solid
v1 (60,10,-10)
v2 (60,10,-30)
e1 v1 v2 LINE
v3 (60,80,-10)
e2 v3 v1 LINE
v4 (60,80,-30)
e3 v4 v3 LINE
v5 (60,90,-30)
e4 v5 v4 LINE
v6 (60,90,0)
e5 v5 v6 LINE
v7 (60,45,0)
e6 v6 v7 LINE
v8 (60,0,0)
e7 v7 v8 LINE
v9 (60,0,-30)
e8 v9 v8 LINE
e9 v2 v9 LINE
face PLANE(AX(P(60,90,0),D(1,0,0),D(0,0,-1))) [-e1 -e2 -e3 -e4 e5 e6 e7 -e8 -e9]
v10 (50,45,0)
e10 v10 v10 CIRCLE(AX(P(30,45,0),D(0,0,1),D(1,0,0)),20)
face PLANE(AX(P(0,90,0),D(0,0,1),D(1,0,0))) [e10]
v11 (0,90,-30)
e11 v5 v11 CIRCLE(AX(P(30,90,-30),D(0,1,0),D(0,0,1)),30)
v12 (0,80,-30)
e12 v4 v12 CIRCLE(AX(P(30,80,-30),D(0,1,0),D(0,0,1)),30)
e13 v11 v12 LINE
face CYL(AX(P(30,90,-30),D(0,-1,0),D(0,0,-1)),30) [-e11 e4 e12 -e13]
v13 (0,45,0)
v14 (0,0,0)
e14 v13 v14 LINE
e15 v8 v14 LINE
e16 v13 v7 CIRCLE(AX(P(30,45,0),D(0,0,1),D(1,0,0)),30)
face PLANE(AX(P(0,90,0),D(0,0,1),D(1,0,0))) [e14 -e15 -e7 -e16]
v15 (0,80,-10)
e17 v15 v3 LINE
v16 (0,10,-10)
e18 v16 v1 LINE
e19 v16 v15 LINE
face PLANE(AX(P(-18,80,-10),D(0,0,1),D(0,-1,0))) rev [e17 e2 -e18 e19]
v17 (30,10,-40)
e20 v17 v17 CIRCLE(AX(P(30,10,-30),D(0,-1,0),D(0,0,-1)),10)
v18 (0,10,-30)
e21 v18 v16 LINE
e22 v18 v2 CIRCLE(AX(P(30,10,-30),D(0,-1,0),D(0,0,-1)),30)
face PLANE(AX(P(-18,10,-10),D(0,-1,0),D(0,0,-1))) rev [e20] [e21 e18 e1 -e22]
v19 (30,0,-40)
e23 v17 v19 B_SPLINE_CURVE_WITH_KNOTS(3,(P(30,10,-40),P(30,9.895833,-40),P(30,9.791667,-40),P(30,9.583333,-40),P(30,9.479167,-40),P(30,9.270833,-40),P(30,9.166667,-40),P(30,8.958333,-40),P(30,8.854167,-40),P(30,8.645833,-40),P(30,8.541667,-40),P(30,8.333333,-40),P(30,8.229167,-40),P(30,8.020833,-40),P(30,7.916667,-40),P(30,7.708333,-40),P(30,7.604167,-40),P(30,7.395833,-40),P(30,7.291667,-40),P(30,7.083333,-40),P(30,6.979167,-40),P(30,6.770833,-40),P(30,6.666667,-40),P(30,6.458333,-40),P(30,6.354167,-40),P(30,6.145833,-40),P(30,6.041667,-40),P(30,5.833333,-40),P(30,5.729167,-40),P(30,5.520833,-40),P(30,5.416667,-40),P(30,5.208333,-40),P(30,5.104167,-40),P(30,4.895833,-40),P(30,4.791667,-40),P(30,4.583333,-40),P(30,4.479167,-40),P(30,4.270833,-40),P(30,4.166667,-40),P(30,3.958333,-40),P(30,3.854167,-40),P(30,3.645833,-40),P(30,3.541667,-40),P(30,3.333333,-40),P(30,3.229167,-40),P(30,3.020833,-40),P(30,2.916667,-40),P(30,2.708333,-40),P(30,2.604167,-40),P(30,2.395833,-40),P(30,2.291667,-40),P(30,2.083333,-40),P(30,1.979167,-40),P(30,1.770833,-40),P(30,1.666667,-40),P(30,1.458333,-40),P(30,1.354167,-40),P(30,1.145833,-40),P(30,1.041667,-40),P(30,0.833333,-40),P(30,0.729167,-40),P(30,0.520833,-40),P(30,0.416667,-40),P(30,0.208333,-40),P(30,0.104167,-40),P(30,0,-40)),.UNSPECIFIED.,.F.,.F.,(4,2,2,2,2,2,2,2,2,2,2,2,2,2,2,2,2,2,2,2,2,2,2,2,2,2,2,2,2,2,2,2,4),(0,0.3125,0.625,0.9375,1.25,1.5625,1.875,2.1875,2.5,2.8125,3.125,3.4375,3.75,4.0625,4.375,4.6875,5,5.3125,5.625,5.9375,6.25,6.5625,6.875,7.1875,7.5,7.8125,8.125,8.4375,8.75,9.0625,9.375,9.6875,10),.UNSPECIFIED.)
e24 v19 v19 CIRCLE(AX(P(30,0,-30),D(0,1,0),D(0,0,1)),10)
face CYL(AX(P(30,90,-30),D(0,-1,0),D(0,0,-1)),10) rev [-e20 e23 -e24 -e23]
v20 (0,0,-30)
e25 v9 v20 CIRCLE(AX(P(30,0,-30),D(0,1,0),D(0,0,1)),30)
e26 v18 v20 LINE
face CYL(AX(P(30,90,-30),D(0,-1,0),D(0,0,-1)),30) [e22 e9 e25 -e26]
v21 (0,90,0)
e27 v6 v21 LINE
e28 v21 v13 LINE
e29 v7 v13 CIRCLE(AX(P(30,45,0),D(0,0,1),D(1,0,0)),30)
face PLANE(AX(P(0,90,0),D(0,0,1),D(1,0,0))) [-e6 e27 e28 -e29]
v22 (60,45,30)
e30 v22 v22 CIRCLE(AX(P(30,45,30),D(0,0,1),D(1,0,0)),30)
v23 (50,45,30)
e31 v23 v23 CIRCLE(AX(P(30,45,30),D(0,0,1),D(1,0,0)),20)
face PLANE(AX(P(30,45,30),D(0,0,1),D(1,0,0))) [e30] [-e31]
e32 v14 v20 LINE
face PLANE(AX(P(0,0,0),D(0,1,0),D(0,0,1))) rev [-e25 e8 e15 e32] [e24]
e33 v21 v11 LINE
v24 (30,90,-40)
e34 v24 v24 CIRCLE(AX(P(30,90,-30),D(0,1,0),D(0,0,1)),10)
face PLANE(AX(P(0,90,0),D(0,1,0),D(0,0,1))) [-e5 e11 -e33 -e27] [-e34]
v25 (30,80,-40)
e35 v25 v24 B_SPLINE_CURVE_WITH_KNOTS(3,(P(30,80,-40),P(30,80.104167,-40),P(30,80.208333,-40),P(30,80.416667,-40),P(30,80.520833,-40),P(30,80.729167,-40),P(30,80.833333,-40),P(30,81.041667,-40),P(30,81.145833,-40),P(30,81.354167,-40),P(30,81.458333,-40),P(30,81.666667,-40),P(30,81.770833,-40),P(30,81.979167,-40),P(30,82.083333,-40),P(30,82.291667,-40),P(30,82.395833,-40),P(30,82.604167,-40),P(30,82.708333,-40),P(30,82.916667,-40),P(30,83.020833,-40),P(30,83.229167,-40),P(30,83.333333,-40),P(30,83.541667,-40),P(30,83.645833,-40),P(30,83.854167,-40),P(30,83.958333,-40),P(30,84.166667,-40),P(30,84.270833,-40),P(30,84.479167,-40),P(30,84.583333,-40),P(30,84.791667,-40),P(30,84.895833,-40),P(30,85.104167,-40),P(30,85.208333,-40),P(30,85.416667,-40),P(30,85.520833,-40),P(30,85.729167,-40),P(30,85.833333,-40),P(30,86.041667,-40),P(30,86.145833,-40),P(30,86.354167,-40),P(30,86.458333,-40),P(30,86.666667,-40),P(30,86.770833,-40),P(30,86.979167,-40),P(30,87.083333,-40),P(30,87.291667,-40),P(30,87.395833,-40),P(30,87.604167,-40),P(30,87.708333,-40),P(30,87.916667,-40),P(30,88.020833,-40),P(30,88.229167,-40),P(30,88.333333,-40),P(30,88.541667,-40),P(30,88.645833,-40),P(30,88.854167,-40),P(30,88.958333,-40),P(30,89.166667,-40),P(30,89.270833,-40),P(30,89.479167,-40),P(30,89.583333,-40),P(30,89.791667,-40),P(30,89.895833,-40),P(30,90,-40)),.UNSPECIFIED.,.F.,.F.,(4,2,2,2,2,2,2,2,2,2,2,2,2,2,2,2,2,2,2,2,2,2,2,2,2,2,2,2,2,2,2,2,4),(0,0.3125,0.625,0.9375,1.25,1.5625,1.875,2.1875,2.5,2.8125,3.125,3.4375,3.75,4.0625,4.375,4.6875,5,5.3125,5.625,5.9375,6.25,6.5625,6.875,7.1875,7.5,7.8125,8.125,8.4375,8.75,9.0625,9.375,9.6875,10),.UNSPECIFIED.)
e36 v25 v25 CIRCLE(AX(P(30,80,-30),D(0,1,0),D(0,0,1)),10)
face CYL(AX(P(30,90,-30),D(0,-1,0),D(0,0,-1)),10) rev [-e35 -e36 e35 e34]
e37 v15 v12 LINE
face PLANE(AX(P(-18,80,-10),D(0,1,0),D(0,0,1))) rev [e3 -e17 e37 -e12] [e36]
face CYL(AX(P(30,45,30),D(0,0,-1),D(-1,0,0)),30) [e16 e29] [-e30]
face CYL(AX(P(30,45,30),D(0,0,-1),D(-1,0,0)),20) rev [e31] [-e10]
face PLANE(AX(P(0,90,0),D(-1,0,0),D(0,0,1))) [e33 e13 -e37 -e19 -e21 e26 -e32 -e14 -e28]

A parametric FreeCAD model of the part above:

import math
import FreeCAD as App
import Part
import Sketcher
from FreeCAD import Vector


def add_polygon(sketch, points):
    """Adds a closed chain of lines whose ends are joined by coincident constraints."""
    first, n = sketch.GeometryCount, len(points)
    for a, b in zip(points, points[1:] + points[:1]):
        sketch.addGeometry(Part.LineSegment(App.Vector(*a, 0), App.Vector(*b, 0)), False)
    for i in range(n):
        sketch.addConstraint(Sketcher.Constraint("Coincident", first + i, 2, first + (i + 1) % n, 1))

doc = App.newDocument("Part")
params = doc.addObject("Spreadsheet::Sheet", "Params")
for row, (alias, value) in enumerate([
    ("sketch1_diameter", "20 mm"),
    ("sketch1_radius", "30 mm"),
    ("sketch1_height", "30 mm"),
    ("pad1_length", "90 mm"),
    ("sketch2_width", "70 mm"),
    ("sketch3_diameter", "60 mm"),
    ("sketch3_diameter2", "40 mm"),
    ("pad2_length", "30 mm"),
], start=1):
    params.set(f"A{row}", alias)
    params.set(f"B{row}", "=" + value)
    params.setAlias(f"B{row}", alias)

body = doc.addObject("PartDesign::Body", "Body")

# Sketch on XZ plane
sketch1 = doc.addObject("Sketcher::SketchObject", "Sketch")
body.addObject(sketch1)
sketch1.AttachmentSupport = (doc.XZ_Plane, [""])
sketch1.MapMode = "FlatFace"
sketch1.addGeometry([
    Part.LineSegment(Vector(0, -30, 0), Vector(0, 0, 0)),  # 0
    Part.LineSegment(Vector(0, 0, 0), Vector(60, 0, 0)),  # 1
    Part.LineSegment(Vector(60, 0, 0), Vector(60, -30, 0)),  # 2
    Part.ArcOfCircle(Part.Circle(Vector(30, -30, 0), Vector(0, 0, 1), 30), math.radians(180), math.radians(360)),  # 3
    Part.Circle(Vector(30, -30, 0), Vector(0, 0, 1), 10),  # 4
], False)
sketch1.addConstraint([
    Sketcher.Constraint("Coincident", 0, 2, 1, 1),
    Sketcher.Constraint("Coincident", 1, 2, 2, 1),
    Sketcher.Constraint("Tangent", 2, 2, 3, 2),
    Sketcher.Constraint("Tangent", 3, 1, 0, 1),
    Sketcher.Constraint("Vertical", 0),
    Sketcher.Constraint("Horizontal", 1),
    Sketcher.Constraint("Vertical", 2),
    Sketcher.Constraint("Coincident", 0, 2, -1, 1),
    Sketcher.Constraint("Coincident", 4, 3, 3, 3),
    Sketcher.Constraint("Diameter", 4, 20.0),
    Sketcher.Constraint("Radius", 3, 30.0),
    Sketcher.Constraint("DistanceY", 0, 1, 0, 2, 30.0),
])
sketch1.setExpression("Constraints[9]", "Params.sketch1_diameter")
sketch1.setExpression("Constraints[10]", "Params.sketch1_radius")
sketch1.setExpression("Constraints[11]", "Params.sketch1_height")
pad1 = doc.addObject("PartDesign::Pad", "Pad")
body.addObject(pad1)
pad1.Profile = sketch1
pad1.setExpression("Length", "Params.pad1_length")
pad1.Reversed = True

# Sketch on YZ plane
sketch2 = doc.addObject("Sketcher::SketchObject", "Sketch001")
body.addObject(sketch2)
sketch2.AttachmentSupport = (doc.YZ_Plane, [""])
sketch2.MapMode = "FlatFace"
add_polygon(sketch2, [(80, -10), (10, -10), (10, -65), (80, -65)])  # lines 0-3
sketch2.addConstraint([
    Sketcher.Constraint("Horizontal", 0),
    Sketcher.Constraint("Vertical", 1),
    Sketcher.Constraint("Horizontal", 2),
    Sketcher.Constraint("Vertical", 3),
    Sketcher.Constraint("DistanceX", 0, 2, 0, 1, 70.0),
    Sketcher.Constraint("DistanceX", -1, 1, 0, 2, 10.0),
    Sketcher.Constraint("DistanceY", 0, 2, -1, 1, 10.0),
    Sketcher.Constraint("DistanceY", 1, 2, 1, 1, 55.395668),
])
sketch2.setExpression("Constraints[8]", "Params.sketch2_width")
pocket1 = doc.addObject("PartDesign::Pocket", "Pocket")
body.addObject(pocket1)
pocket1.Profile = sketch2
pocket1.Type = "ThroughAll"
pocket1.Midplane = True

# Sketch on XY plane
sketch3 = doc.addObject("Sketcher::SketchObject", "Sketch002")
body.addObject(sketch3)
sketch3.AttachmentSupport = (doc.XY_Plane, [""])
sketch3.MapMode = "FlatFace"
sketch3.addGeometry([
    Part.Circle(Vector(30, 45, 0), Vector(0, 0, 1), 30),
    Part.Circle(Vector(30, 45, 0), Vector(0, 0, 1), 20),
], False)
sketch3.addConstraint([
    Sketcher.Constraint("Coincident", 1, 3, 0, 3),
    Sketcher.Constraint("Diameter", 0, 60.0),
    Sketcher.Constraint("Diameter", 1, 40.0),
    Sketcher.Constraint("DistanceX", -1, 1, 0, 3, 30.0),
    Sketcher.Constraint("DistanceY", -1, 1, 0, 3, 45.0),
])
sketch3.setExpression("Constraints[1]", "Params.sketch3_diameter")
sketch3.setExpression("Constraints[2]", "Params.sketch3_diameter2")
pad2 = doc.addObject("PartDesign::Pad", "Pad001")
body.addObject(pad2)
pad2.Profile = sketch3
pad2.setExpression("Length", "Params.pad2_length")

doc.recompute()
